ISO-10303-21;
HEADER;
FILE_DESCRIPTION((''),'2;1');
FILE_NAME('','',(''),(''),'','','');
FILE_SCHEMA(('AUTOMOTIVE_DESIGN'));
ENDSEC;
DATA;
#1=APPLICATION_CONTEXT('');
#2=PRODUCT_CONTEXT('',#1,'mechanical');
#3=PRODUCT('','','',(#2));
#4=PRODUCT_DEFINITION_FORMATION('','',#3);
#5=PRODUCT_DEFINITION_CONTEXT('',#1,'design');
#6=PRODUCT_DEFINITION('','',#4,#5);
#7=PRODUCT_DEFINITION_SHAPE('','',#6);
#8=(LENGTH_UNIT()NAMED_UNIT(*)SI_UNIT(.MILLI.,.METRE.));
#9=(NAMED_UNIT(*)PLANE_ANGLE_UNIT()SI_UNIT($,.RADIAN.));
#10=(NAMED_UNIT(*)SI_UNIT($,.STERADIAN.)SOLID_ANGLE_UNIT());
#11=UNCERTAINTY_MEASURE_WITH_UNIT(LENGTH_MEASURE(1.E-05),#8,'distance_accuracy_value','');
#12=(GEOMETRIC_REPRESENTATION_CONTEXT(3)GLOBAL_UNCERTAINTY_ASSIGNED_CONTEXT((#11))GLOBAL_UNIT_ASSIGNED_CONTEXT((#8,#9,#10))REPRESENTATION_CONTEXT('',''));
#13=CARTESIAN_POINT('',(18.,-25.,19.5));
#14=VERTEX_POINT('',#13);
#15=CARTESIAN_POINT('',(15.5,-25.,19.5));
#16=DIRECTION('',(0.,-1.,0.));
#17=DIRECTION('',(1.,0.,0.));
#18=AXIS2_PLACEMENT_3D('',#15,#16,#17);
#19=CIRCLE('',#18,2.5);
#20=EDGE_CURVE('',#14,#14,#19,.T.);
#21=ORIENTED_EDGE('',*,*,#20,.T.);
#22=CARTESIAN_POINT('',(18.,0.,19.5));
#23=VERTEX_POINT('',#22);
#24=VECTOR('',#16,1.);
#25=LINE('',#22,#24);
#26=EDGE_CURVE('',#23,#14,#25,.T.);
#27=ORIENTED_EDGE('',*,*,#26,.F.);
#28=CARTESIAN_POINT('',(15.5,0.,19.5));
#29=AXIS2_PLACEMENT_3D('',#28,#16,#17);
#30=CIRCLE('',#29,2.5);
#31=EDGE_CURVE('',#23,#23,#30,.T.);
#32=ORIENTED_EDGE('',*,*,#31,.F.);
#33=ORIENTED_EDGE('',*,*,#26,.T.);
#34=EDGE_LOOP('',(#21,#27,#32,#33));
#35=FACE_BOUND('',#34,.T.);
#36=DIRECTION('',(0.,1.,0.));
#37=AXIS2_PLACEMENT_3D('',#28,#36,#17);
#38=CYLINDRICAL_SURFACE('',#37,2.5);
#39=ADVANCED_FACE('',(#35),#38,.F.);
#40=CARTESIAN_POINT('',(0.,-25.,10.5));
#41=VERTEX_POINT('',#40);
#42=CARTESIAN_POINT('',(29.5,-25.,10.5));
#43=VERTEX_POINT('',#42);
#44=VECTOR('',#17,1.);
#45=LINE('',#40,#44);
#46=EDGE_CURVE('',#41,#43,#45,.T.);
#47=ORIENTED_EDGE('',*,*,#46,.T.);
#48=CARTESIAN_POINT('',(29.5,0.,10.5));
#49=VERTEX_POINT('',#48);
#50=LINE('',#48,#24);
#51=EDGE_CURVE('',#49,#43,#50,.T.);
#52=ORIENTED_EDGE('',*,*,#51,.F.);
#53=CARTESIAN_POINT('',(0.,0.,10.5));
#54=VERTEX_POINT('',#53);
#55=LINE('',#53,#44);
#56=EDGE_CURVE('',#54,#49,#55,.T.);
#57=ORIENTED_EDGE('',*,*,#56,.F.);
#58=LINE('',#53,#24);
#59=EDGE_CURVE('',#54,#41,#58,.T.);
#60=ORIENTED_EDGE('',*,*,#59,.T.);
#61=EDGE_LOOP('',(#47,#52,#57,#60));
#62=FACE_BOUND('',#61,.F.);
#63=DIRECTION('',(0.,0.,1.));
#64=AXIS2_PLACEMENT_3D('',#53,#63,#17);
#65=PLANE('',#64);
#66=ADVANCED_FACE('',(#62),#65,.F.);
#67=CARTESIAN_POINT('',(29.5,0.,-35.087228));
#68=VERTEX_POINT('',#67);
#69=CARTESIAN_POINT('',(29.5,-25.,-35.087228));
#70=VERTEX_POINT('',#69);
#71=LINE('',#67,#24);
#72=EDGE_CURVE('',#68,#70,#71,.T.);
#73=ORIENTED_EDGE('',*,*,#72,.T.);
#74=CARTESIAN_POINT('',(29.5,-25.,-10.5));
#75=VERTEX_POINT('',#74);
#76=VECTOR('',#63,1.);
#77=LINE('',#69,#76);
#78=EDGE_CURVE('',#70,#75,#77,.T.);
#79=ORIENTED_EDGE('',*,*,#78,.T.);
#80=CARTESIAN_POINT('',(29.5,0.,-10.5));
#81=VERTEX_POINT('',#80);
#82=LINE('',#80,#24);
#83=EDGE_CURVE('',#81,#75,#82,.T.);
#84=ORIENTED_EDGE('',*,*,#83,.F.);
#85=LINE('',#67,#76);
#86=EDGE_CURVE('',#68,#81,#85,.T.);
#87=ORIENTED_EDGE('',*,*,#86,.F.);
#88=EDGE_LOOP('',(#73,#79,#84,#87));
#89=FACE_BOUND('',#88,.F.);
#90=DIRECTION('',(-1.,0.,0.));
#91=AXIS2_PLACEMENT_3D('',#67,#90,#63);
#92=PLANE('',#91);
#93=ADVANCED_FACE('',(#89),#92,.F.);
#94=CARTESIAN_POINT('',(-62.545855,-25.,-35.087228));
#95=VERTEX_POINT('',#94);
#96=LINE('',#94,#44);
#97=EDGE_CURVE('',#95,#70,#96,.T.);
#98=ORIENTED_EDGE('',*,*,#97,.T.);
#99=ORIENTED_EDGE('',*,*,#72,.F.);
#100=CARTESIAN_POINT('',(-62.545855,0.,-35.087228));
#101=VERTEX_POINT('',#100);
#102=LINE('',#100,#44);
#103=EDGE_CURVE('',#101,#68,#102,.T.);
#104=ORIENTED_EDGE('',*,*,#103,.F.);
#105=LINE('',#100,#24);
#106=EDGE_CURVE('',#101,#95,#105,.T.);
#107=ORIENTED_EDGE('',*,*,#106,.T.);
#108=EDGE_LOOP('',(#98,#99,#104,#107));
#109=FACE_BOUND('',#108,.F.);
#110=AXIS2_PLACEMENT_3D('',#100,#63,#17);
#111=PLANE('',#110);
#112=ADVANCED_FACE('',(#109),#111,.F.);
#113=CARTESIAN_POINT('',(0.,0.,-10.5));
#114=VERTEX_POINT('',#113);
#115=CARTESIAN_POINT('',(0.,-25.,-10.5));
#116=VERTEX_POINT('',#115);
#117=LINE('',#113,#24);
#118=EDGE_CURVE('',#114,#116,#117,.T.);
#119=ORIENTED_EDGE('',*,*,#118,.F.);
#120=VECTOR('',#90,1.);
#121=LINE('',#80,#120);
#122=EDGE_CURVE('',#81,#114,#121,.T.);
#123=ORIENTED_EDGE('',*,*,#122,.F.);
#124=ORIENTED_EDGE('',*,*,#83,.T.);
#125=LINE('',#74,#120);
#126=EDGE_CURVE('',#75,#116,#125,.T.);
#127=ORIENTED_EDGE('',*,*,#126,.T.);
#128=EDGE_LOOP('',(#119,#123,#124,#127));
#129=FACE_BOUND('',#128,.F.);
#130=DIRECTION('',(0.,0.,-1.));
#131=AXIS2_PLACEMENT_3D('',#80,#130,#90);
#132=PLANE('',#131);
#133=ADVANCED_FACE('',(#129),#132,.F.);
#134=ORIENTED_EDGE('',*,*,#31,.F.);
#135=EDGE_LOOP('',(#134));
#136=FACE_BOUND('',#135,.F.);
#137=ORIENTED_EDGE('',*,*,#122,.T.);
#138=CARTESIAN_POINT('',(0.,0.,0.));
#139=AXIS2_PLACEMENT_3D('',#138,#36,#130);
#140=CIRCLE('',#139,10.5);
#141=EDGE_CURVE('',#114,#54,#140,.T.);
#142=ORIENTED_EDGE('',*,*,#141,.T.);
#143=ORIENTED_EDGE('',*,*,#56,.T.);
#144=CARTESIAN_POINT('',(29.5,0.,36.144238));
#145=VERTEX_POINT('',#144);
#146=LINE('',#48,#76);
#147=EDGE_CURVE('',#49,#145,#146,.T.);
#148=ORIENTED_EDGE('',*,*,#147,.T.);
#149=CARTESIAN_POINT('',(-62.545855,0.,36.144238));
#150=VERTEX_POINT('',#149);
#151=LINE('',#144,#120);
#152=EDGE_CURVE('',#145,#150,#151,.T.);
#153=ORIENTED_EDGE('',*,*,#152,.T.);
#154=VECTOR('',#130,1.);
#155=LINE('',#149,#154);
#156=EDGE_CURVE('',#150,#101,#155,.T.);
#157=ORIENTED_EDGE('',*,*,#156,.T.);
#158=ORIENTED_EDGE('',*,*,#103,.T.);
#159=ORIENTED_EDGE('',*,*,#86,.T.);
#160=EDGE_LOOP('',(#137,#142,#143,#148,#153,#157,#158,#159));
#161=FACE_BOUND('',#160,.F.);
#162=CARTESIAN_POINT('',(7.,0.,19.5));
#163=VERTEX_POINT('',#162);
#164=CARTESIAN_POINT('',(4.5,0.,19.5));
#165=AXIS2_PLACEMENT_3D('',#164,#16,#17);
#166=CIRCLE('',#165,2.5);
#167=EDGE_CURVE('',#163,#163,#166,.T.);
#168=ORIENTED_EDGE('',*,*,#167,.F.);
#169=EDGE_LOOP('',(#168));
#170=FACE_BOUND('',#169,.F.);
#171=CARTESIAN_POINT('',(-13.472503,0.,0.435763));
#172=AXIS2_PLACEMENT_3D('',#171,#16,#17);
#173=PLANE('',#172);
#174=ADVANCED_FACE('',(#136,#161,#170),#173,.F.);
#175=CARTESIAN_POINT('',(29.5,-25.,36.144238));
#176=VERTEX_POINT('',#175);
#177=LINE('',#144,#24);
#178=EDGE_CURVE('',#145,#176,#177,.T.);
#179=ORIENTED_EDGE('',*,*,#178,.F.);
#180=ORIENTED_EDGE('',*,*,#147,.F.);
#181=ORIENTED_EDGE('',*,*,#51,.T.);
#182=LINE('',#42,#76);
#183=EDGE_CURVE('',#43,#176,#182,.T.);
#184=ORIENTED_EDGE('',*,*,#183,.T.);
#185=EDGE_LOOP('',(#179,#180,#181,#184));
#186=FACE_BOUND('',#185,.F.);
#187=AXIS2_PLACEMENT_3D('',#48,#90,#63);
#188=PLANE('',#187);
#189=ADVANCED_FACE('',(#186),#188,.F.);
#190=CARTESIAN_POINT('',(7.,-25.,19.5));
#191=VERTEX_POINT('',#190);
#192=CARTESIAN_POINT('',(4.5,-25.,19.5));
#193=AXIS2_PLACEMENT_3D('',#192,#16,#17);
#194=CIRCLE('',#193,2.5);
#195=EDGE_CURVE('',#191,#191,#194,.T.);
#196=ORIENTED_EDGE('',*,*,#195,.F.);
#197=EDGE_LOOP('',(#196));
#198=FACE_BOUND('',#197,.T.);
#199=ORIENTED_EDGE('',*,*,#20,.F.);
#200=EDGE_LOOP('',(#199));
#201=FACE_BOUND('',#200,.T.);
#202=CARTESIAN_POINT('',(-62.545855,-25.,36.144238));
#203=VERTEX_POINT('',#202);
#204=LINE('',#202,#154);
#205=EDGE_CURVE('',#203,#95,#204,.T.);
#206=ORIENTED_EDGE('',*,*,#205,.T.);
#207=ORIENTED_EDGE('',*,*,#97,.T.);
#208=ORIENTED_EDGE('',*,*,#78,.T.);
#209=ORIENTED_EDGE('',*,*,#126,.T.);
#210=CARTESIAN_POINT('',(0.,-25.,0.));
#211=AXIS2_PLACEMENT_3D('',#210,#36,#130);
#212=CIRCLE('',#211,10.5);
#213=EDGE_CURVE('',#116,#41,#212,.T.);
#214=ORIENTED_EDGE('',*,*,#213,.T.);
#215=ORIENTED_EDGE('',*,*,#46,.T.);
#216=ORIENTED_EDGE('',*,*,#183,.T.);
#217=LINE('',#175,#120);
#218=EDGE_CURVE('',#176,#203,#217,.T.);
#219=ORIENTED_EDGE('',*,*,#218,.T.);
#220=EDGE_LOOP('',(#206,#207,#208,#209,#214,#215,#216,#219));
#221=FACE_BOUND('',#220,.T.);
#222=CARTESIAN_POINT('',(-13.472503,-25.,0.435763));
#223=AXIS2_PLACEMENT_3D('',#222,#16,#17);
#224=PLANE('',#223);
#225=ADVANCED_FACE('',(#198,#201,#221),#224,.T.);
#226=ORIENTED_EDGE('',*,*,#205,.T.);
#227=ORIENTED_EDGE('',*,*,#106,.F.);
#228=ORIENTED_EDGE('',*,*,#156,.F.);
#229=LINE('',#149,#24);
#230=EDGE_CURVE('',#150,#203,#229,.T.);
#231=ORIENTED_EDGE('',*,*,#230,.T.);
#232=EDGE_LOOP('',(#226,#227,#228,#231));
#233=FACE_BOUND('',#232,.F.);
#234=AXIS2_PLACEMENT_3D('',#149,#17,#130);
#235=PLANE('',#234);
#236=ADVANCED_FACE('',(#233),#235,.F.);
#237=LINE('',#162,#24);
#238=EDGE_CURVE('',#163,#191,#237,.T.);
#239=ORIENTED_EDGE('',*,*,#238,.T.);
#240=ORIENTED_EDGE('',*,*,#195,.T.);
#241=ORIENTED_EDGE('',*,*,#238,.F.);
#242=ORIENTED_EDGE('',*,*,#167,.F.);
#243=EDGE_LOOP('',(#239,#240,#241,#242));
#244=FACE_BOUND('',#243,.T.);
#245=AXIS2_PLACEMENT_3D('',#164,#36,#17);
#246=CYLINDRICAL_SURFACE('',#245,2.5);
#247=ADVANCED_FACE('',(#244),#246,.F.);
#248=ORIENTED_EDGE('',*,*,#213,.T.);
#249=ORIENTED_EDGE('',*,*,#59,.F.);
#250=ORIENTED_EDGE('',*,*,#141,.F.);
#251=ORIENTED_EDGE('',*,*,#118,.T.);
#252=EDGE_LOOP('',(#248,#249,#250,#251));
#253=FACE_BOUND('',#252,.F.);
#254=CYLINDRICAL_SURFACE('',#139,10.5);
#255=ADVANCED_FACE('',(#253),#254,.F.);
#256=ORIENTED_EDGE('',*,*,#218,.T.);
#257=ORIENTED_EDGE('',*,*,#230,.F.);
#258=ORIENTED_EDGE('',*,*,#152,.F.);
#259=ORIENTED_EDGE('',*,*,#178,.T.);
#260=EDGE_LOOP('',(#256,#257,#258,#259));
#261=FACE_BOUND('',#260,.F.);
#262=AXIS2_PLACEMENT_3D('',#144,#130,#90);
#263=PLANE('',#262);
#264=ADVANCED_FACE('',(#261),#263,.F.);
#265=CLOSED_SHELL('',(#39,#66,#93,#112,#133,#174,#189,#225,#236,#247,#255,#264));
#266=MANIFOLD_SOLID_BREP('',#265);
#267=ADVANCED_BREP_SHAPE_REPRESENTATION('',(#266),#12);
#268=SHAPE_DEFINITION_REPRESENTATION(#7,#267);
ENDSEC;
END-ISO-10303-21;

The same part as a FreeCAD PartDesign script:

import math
import FreeCAD as App
import Part
import Sketcher
from FreeCAD import Vector

doc = App.newDocument("Part")
body = doc.addObject("PartDesign::Body", "Body")

# Sketch on XZ plane
sketch1 = body.newObject("Sketcher::SketchObject", "Sketch")
sketch1.AttachmentSupport = (doc.getObject("XZ_Plane"), [""])
sketch1.MapMode = "FlatFace"
sketch1.addGeometry([
    Part.ArcOfCircle(Part.Circle(Vector(0, 0, 0), Vector(0, 0, 1), 10.5), math.radians(90), math.radians(270)),  # 0
    Part.LineSegment(Vector(0, 10.5, 0), Vector(29.5, 10.5, 0)),  # 1
    Part.LineSegment(Vector(29.5, 10.5, 0), Vector(29.5, 36.1, 0)),  # 2
    Part.LineSegment(Vector(29.5, 36.1, 0), Vector(-62.5, 36.1, 0)),  # 3
    Part.LineSegment(Vector(-62.5, 36.1, 0), Vector(-62.5, -35.1, 0)),  # 4
    Part.LineSegment(Vector(-62.5, -35.1, 0), Vector(29.5, -35.1, 0)),  # 5
    Part.LineSegment(Vector(29.5, -35.1, 0), Vector(29.5, -10.5, 0)),  # 6
    Part.LineSegment(Vector(29.5, -10.5, 0), Vector(0, -10.5, 0)),  # 7
    Part.Circle(Vector(4.5, 19.5, 0), Vector(0, 0, 1), 2.5),  # 8
    Part.Circle(Vector(15.5, 19.5, 0), Vector(0, 0, 1), 2.5),  # 9
], False)
sketch1.addConstraint([
    Sketcher.Constraint("Tangent", 0, 1, 1, 1),
    Sketcher.Constraint("Coincident", 1, 2, 2, 1),
    Sketcher.Constraint("Coincident", 2, 2, 3, 1),
    Sketcher.Constraint("Coincident", 3, 2, 4, 1),
    Sketcher.Constraint("Coincident", 4, 2, 5, 1),
    Sketcher.Constraint("Coincident", 5, 2, 6, 1),
    Sketcher.Constraint("Coincident", 6, 2, 7, 1),
    Sketcher.Constraint("Tangent", 7, 2, 0, 2),
    Sketcher.Constraint("Horizontal", 1),
    Sketcher.Constraint("Vertical", 2),
    Sketcher.Constraint("Horizontal", 3),
    Sketcher.Constraint("Vertical", 4),
    Sketcher.Constraint("Horizontal", 5),
    Sketcher.Constraint("Vertical", 6),
    Sketcher.Constraint("Horizontal", 7),
    Sketcher.Constraint("Coincident", 0, 3, -1, 1),
    Sketcher.Constraint("Equal", 8, 9),
    Sketcher.Constraint("Horizontal", 8, 3, 9, 3),
    Sketcher.Constraint("Vertical", 2, 2, 5, 2),
    Sketcher.Constraint("Diameter", 8, 5.0),
    Sketcher.Constraint("Radius", 0, 10.5),
    Sketcher.Constraint("DistanceX", 1, 1, 1, 2, 29.5),
    Sketcher.Constraint("DistanceX", 8, 3, 9, 3, 11.0),
    Sketcher.Constraint("DistanceY", 0, 1, 8, 3, 9.0),
    Sketcher.Constraint("DistanceX", 9, 3, 1, 2, 14.0),
    Sketcher.Constraint("DistanceY", 2, 1, 2, 2, 25.644238),
    Sketcher.Constraint("DistanceY", 6, 1, 6, 2, 24.587228),
    Sketcher.Constraint("DistanceX", 3, 2, 3, 1, 92.045855),
])
pad1 = body.newObject("PartDesign::Pad", "Pad")
pad1.Profile = sketch1
pad1.Length = 25

doc.recompute()
